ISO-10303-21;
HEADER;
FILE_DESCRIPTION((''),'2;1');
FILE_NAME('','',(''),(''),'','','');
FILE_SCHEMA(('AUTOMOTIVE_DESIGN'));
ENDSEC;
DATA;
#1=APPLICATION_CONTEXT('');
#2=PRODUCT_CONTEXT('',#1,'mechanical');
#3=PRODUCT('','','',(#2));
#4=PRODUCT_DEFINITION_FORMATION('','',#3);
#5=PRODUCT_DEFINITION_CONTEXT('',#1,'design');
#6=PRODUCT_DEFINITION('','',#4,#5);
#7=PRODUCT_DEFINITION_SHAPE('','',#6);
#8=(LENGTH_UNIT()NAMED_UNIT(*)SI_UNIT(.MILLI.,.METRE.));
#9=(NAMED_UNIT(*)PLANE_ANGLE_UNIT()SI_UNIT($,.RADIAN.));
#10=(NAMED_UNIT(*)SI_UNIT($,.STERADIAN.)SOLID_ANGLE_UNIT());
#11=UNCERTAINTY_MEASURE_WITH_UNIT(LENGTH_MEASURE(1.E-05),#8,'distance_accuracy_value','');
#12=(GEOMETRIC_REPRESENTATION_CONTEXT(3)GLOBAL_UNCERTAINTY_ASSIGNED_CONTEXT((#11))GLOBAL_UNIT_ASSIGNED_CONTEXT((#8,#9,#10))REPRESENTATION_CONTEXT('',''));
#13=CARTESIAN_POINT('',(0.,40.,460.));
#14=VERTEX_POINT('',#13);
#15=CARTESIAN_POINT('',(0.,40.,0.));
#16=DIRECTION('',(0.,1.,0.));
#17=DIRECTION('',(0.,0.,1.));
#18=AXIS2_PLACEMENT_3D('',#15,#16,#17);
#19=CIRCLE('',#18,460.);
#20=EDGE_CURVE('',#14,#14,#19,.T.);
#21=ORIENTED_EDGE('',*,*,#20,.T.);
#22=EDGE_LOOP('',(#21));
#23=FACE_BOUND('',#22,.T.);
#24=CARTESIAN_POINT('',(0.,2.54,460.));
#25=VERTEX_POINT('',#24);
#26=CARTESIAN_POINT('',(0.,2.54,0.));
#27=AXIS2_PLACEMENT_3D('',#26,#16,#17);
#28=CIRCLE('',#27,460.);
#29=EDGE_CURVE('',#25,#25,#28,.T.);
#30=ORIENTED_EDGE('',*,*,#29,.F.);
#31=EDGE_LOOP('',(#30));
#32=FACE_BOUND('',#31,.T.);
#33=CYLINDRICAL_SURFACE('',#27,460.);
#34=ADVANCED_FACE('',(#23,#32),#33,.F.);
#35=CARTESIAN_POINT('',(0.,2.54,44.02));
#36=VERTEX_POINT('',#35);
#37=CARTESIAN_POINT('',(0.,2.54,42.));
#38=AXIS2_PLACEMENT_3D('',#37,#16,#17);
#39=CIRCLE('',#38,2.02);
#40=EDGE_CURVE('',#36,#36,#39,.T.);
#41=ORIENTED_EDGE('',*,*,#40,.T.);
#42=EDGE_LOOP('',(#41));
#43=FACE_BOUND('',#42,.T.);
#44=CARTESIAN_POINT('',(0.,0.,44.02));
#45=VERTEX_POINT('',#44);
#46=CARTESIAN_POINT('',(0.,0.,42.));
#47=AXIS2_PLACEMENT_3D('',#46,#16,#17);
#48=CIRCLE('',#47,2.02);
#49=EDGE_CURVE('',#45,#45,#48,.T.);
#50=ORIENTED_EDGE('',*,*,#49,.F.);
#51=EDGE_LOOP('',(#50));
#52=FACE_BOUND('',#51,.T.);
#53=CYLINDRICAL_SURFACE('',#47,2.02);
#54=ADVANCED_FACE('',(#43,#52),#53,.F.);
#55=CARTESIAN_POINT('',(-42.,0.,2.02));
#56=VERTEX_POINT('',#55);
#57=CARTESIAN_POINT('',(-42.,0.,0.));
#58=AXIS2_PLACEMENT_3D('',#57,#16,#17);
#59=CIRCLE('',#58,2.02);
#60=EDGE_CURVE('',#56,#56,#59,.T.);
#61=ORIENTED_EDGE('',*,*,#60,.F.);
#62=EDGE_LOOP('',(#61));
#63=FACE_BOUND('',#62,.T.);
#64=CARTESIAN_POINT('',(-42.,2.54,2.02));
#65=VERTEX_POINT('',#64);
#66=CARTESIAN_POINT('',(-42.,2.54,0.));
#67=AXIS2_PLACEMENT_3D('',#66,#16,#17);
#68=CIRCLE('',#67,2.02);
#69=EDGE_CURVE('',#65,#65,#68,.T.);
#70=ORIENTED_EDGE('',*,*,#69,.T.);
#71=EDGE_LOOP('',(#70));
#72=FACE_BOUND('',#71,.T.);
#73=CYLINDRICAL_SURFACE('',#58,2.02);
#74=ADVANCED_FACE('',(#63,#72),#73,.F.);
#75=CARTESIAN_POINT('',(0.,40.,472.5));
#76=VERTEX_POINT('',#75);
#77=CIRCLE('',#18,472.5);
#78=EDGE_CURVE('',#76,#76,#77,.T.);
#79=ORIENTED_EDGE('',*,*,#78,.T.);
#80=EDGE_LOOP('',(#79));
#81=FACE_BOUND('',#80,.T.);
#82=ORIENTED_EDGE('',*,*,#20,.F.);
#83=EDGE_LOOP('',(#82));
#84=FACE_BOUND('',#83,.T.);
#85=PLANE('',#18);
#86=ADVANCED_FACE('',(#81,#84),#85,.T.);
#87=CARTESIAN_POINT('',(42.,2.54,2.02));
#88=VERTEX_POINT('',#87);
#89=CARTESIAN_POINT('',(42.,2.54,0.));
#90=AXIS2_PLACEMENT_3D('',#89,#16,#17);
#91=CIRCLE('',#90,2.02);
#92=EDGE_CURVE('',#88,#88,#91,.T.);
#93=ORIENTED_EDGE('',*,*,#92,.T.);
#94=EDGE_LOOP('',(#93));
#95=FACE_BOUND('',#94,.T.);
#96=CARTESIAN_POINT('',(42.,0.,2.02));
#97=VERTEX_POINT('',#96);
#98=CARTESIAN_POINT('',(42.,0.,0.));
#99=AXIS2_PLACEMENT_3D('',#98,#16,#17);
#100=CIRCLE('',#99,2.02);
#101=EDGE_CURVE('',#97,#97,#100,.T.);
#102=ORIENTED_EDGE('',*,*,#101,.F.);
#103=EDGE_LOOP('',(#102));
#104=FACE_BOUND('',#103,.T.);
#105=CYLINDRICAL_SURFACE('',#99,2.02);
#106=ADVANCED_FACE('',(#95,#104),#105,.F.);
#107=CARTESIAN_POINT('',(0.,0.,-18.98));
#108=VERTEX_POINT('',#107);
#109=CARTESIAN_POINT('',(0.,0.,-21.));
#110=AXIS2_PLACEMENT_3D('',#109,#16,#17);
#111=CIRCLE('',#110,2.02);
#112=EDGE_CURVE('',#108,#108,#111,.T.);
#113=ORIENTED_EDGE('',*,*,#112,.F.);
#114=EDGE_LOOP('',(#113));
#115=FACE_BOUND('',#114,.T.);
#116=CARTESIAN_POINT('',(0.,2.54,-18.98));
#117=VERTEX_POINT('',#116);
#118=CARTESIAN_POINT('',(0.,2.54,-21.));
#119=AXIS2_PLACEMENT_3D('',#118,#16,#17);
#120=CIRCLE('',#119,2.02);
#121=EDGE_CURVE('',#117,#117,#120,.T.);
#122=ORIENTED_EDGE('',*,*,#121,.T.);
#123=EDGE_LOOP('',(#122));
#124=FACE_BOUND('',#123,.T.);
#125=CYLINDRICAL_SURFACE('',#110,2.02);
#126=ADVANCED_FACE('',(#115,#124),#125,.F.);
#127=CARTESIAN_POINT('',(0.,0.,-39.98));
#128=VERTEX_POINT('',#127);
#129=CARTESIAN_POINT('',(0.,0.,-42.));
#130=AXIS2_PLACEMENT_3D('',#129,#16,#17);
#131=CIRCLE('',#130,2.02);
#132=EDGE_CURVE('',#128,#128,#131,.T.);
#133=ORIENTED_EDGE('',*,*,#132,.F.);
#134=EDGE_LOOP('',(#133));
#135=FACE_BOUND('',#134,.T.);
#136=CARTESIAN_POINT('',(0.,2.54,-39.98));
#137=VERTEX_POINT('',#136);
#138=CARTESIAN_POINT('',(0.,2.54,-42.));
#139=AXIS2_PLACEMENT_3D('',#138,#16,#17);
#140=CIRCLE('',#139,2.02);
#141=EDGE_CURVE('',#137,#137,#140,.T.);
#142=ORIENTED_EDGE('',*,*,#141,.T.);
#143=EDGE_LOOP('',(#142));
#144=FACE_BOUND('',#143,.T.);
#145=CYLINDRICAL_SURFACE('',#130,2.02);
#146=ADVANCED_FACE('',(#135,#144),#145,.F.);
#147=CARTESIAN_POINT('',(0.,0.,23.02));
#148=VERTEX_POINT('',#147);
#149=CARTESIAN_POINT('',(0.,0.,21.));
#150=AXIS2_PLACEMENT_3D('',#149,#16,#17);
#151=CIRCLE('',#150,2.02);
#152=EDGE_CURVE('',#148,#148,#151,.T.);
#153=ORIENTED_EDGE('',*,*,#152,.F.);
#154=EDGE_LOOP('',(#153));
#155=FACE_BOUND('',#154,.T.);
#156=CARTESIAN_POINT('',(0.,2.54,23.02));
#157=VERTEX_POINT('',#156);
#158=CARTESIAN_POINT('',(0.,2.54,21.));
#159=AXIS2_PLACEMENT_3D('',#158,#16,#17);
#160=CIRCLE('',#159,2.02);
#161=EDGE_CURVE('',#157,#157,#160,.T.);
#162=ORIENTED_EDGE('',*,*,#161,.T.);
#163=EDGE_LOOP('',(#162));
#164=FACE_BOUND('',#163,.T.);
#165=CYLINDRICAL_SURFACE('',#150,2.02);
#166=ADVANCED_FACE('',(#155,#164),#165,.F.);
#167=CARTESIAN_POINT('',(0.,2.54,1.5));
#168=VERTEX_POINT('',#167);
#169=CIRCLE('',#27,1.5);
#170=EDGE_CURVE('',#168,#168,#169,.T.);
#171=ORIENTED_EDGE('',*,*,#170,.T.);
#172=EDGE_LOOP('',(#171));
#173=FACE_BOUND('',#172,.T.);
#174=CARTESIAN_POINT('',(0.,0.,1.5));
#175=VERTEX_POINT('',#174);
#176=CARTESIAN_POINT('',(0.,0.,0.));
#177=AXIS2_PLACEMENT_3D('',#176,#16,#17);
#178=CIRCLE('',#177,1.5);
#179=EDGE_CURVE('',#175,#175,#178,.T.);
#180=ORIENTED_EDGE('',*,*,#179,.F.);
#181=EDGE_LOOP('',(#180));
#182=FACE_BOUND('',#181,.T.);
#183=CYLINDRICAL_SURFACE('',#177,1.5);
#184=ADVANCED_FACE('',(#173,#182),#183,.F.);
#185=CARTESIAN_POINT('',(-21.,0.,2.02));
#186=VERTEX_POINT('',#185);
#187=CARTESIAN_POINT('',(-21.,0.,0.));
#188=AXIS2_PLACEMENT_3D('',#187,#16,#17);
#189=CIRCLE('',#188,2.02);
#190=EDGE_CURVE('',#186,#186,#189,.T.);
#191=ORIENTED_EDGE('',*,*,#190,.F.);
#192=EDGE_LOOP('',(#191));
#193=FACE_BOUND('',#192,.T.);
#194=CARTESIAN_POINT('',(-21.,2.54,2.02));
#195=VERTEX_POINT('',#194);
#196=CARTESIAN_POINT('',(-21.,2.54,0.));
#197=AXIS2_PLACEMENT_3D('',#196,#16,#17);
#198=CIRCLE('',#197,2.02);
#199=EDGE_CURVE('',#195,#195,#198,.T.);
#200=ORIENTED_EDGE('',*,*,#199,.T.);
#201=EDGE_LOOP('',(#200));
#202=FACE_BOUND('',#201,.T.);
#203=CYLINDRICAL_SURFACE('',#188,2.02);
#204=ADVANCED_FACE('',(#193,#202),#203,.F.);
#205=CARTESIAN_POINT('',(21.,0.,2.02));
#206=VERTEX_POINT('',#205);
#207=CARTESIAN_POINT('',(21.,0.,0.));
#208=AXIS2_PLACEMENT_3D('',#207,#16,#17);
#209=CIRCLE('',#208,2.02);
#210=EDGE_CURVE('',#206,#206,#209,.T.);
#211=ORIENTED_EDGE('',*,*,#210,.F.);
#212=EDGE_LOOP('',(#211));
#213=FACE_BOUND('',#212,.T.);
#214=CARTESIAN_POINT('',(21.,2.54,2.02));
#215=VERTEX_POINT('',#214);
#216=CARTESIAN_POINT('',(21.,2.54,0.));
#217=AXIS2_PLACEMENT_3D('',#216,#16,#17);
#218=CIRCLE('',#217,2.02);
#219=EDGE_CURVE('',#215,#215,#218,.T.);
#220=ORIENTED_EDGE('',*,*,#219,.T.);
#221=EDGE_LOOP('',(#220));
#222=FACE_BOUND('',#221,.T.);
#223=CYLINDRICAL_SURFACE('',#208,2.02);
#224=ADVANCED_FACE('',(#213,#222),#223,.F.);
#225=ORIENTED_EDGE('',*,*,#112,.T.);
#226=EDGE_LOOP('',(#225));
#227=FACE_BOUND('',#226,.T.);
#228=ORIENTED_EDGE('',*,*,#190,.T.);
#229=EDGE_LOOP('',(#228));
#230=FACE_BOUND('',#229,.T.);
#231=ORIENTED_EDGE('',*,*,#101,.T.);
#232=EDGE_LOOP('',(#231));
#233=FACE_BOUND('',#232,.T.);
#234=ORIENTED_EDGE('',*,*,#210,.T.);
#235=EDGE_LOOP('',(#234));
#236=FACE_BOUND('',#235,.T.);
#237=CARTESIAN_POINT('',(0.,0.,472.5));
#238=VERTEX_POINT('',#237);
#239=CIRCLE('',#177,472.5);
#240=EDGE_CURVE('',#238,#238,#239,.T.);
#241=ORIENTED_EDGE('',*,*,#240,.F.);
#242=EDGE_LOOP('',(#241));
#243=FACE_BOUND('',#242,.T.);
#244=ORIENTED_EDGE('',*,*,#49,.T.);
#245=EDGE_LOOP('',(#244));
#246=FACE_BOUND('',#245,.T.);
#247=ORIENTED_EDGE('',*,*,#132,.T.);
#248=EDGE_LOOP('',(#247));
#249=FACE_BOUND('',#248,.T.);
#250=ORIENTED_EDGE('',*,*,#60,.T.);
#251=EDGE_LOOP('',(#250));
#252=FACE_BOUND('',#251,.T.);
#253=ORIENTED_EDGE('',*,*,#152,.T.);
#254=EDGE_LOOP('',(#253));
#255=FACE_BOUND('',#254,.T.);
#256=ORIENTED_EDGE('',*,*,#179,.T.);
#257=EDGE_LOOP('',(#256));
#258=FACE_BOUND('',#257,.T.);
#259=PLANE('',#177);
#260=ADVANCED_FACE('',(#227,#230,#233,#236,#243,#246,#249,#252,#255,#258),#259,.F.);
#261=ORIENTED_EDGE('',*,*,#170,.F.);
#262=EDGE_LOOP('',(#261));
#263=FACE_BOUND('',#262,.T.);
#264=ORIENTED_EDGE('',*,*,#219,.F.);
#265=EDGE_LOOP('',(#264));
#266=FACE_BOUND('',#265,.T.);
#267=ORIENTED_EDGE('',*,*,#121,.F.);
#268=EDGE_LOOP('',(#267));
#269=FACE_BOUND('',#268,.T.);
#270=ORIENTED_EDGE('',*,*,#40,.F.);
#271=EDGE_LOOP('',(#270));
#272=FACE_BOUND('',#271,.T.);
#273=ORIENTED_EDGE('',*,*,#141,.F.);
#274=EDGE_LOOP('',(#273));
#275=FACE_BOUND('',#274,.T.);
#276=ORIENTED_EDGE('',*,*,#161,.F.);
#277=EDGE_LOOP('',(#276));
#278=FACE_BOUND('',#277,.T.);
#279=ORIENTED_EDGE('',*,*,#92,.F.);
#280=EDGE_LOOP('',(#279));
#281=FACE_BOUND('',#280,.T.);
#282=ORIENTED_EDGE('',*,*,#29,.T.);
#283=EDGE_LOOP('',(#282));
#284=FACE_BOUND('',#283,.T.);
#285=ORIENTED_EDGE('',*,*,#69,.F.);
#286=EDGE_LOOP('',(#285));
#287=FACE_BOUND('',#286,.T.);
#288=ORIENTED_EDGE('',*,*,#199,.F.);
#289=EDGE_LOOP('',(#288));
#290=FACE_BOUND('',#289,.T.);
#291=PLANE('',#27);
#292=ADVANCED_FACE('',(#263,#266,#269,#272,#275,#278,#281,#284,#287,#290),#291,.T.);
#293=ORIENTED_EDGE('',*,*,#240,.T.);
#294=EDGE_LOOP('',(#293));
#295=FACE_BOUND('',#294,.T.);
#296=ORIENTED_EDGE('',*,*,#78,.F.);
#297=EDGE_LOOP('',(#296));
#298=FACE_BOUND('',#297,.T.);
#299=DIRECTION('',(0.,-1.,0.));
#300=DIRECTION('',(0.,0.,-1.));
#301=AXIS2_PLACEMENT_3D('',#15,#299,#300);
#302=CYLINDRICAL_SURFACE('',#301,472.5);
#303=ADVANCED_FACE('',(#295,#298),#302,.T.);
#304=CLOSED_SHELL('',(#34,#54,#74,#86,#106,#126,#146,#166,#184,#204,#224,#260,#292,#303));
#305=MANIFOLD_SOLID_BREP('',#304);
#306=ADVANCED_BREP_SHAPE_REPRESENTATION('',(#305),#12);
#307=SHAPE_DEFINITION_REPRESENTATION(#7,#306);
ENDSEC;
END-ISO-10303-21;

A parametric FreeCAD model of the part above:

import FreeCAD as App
import Part
import Sketcher
from FreeCAD import Vector
Q = App.Units.Quantity

doc = App.newDocument("Part")
body = doc.addObject("PartDesign::Body", "Body")

# Sketch on XZ plane
sketch1 = body.newObject("Sketcher::SketchObject", "Sketch")
sketch1.AttachmentSupport = (doc.getObject("XZ_Plane"), [""])
sketch1.MapMode = "FlatFace"
sketch1.addGeometry(Part.Circle(Vector(0, 0, 0), Vector(0, 0, 1), 472), False)
sketch1.addConstraint(Sketcher.Constraint("Coincident", 0, 3, -1, 1))
sketch1.addConstraint(Sketcher.Constraint("Diameter", 0, Q("945 mm")))
pad1 = body.newObject("PartDesign::Pad", "Pad")
pad1.Profile = sketch1
pad1.Length = 40
pad1.Reversed = True

# Sketch on XZ plane
sketch2 = body.newObject("Sketcher::SketchObject", "Sketch001")
sketch2.AttachmentSupport = (doc.getObject("XZ_Plane"), [""])
sketch2.MapMode = "FlatFace"
sketch2.AttachmentOffset = App.Placement(Vector(0, 0, -40), App.Rotation())
sketch2.addGeometry(Part.Circle(Vector(0, 0, 0), Vector(0, 0, 1), 460), False)
sketch2.addConstraint(Sketcher.Constraint("Coincident", 0, 3, -1, 1))
sketch2.addConstraint(Sketcher.Constraint("Diameter", 0, Q("920 mm")))
pocket1 = body.newObject("PartDesign::Pocket", "Pocket")
pocket1.Profile = sketch2
pocket1.Length = 37.46
pocket1.Reversed = True

# Sketch on XZ plane
sketch3 = body.newObject("Sketcher::SketchObject", "Sketch002")
sketch3.AttachmentSupport = (doc.getObject("XZ_Plane"), [""])
sketch3.MapMode = "FlatFace"
sketch3.AttachmentOffset = App.Placement(Vector(0, 0, -2.54), App.Rotation())
sketch3.addGeometry(Part.Circle(Vector(0, 0, 0), Vector(0, 0, 1), 1.5), False)
sketch3.addConstraint(Sketcher.Constraint("Coincident", 0, 3, -1, 1))
sketch3.addConstraint(Sketcher.Constraint("Diameter", 0, Q("3 mm")))
pocket2 = body.newObject("PartDesign::Pocket", "Pocket001")
pocket2.Profile = sketch3
pocket2.Type = "ThroughAll"
pocket2.Reversed = True

# Sketch on XZ plane
sketch4 = body.newObject("Sketcher::SketchObject", "Sketch003")
sketch4.AttachmentSupport = (doc.getObject("XZ_Plane"), [""])
sketch4.MapMode = "FlatFace"
sketch4.AttachmentOffset = App.Placement(Vector(0, 0, -2.54), App.Rotation())
sketch4.addGeometry(Part.Circle(Vector(0, -42, 0), Vector(0, 0, 1), 2), False)
sketch4.addGeometry(Part.Circle(Vector(42, 0, 0), Vector(0, 0, 1), 2), False)
sketch4.addGeometry(Part.Circle(Vector(0, 42, 0), Vector(0, 0, 1), 2), False)
sketch4.addGeometry(Part.Circle(Vector(-42, 0, 0), Vector(0, 0, 1), 2), False)
sketch4.addGeometry(Part.Circle(Vector(0, -21, 0), Vector(0, 0, 1), 2), False)
sketch4.addGeometry(Part.Circle(Vector(21, 0, 0), Vector(0, 0, 1), 2), False)
sketch4.addGeometry(Part.Circle(Vector(0, 21, 0), Vector(0, 0, 1), 2), False)
sketch4.addGeometry(Part.Circle(Vector(-21, 0, 0), Vector(0, 0, 1), 2), False)
sketch4.addConstraint(Sketcher.Constraint("Equal", 0, 1))
sketch4.addConstraint(Sketcher.Constraint("Equal", 1, 2))
sketch4.addConstraint(Sketcher.Constraint("Equal", 2, 3))
sketch4.addConstraint(Sketcher.Constraint("Equal", 3, 4))
sketch4.addConstraint(Sketcher.Constraint("Equal", 4, 5))
sketch4.addConstraint(Sketcher.Constraint("Equal", 5, 6))
sketch4.addConstraint(Sketcher.Constraint("Equal", 6, 7))
sketch4.addConstraint(Sketcher.Constraint("Symmetric", 0, 3, 2, 3, -1, 1))
sketch4.addConstraint(Sketcher.Constraint("Symmetric", 1, 3, 3, 3, -1, 1))
sketch4.addConstraint(Sketcher.Constraint("Symmetric", 4, 3, 6, 3, -1, 1))
sketch4.addConstraint(Sketcher.Constraint("Symmetric", 5, 3, 7, 3, -1, 1))
sketch4.addConstraint(Sketcher.Constraint("PointOnObject", 0, 3, -2))
sketch4.addConstraint(Sketcher.Constraint("PointOnObject", 1, 3, -1))
sketch4.addConstraint(Sketcher.Constraint("PointOnObject", 4, 3, -2))
sketch4.addConstraint(Sketcher.Constraint("PointOnObject", 5, 3, -1))
sketch4.addConstraint(Sketcher.Constraint("Diameter", 0, Q("4.04 mm")))
sketch4.addConstraint(Sketcher.Constraint("DistanceY", 0, 3, -1, 1, Q("42 mm")))
sketch4.addConstraint(Sketcher.Constraint("DistanceX", -1, 1, 1, 3, Q("42 mm")))
sketch4.addConstraint(Sketcher.Constraint("DistanceY", 4, 3, -1, 1, Q("21 mm")))
sketch4.addConstraint(Sketcher.Constraint("DistanceX", -1, 1, 5, 3, Q("21 mm")))
pocket3 = body.newObject("PartDesign::Pocket", "Pocket002")
pocket3.Profile = sketch4
pocket3.Type = "ThroughAll"
pocket3.Reversed = True

doc.recompute()
